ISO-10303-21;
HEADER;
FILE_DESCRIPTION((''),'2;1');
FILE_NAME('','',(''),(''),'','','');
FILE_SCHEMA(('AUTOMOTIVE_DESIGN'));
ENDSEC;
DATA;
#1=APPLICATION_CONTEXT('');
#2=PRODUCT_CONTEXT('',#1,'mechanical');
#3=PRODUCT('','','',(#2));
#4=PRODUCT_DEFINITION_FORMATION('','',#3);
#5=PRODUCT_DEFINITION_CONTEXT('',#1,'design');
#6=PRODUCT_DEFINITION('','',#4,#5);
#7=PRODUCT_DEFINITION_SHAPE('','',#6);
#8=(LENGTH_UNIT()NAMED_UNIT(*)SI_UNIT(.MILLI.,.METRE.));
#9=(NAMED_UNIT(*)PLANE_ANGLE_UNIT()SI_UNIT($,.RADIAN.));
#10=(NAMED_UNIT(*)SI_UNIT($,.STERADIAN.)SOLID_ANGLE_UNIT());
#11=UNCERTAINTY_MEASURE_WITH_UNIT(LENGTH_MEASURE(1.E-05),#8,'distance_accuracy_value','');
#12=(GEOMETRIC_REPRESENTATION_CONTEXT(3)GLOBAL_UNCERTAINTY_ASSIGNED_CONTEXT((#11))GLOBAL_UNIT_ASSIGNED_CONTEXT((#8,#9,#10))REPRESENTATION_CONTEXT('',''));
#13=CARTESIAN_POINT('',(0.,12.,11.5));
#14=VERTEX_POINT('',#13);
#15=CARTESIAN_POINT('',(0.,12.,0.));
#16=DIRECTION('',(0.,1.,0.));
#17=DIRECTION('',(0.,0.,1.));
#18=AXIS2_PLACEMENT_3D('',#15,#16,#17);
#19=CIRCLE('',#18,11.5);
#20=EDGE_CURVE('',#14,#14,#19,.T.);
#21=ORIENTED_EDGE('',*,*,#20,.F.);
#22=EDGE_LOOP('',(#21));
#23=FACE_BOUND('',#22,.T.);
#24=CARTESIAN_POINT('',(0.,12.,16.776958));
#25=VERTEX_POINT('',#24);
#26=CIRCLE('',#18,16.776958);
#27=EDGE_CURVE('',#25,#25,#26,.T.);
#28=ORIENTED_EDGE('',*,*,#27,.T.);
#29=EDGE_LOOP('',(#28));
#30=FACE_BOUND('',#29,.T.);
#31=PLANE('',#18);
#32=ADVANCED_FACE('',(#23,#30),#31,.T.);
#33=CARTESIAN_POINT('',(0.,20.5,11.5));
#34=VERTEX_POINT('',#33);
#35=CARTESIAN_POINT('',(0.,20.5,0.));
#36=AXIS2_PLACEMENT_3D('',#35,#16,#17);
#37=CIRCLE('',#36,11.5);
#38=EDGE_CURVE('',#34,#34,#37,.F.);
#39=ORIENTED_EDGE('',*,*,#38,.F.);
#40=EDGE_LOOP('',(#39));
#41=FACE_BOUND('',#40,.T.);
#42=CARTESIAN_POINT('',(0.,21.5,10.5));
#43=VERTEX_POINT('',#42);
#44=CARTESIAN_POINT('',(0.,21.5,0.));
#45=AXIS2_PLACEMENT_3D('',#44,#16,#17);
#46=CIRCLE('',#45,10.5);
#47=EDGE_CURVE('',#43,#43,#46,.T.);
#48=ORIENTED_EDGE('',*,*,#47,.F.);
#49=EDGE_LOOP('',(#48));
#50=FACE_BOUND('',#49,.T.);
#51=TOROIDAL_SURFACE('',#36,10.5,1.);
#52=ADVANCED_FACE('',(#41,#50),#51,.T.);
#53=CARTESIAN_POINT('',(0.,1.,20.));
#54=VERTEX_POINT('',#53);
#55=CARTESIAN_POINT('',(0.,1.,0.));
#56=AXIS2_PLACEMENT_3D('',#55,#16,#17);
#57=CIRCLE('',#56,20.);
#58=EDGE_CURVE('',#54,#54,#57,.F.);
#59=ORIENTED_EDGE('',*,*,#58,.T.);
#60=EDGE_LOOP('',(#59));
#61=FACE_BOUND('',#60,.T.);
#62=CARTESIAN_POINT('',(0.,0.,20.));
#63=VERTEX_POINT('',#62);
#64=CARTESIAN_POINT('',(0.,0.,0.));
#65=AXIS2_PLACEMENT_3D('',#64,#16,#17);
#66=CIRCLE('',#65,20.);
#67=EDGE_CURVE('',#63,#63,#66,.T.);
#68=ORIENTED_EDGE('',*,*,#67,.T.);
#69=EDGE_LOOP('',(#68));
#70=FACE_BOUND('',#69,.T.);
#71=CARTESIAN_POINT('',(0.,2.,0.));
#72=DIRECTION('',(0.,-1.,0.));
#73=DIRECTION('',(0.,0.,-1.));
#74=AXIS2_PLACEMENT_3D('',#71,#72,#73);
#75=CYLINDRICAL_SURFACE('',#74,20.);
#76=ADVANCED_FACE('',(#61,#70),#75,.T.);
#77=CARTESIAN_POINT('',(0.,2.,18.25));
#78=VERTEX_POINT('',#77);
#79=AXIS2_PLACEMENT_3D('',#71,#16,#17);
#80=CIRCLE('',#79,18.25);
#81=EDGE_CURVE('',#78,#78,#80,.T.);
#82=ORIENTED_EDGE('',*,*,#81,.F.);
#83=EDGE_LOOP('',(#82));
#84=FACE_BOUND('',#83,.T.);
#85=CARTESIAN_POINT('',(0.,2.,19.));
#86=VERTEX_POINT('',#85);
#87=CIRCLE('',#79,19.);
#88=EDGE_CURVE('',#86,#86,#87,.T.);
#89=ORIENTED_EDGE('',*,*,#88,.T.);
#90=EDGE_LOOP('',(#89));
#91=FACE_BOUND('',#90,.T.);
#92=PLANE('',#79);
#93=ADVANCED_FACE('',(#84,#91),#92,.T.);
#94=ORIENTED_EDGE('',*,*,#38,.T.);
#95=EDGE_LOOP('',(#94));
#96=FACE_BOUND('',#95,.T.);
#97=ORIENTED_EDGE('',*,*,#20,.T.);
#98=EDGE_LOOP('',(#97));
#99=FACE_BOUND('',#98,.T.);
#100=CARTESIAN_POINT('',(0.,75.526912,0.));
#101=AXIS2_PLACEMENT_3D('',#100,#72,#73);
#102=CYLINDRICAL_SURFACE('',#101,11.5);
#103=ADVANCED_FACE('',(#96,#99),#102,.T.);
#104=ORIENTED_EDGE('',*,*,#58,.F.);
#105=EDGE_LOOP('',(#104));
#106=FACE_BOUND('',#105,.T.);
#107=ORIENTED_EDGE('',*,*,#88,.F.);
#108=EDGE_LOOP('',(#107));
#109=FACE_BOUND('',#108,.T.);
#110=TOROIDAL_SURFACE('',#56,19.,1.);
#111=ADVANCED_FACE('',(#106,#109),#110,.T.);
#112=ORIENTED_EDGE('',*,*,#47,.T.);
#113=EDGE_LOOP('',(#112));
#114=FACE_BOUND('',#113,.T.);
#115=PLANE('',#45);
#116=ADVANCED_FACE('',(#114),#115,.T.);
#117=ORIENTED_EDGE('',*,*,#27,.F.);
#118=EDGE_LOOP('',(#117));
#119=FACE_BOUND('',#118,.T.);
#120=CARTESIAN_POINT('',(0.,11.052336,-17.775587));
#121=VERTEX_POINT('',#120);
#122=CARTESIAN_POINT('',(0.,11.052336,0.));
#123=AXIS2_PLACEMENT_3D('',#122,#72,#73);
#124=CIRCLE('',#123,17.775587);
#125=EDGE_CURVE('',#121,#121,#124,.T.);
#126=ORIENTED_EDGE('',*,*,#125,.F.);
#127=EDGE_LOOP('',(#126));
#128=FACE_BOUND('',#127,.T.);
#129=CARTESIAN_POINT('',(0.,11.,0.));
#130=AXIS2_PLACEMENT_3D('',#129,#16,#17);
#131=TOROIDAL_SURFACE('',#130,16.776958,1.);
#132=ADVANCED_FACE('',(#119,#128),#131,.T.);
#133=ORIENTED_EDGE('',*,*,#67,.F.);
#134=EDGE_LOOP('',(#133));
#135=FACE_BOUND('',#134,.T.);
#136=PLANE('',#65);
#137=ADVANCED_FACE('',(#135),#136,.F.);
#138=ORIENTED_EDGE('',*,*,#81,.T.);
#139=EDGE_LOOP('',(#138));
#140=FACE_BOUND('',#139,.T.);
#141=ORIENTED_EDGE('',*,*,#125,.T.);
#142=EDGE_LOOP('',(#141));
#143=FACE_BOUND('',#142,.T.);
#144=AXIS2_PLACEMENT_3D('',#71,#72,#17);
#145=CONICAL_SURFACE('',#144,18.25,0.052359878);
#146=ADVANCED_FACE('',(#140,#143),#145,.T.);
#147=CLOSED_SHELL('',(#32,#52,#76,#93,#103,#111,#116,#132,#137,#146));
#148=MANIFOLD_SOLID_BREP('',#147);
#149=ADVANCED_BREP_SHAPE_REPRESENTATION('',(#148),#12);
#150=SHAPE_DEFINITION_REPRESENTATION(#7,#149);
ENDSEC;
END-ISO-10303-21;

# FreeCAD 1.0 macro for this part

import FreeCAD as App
import Part
import Sketcher
from FreeCAD import Vector


def edges_at(feature, points):
    """Names of the edges that pass closest to the given points."""
    edges = feature.Shape.Edges
    near = lambda p: min(range(len(edges)), key=lambda i: edges[i].distToShape(Part.Vertex(*p))[0])
    return sorted({f"Edge{near(p) + 1}" for p in points})

doc = App.newDocument("Part")
body = doc.addObject("PartDesign::Body", "Body")

# Sketch on XZ plane
sketch1 = body.newObject("Sketcher::SketchObject", "Sketch")
sketch1.AttachmentSupport = (doc.getObject("XZ_Plane"), [""])
sketch1.MapMode = "FlatFace"
sketch1.addGeometry(Part.Circle(Vector(0, 0, 0), Vector(0, 0, 1), 20), False)
sketch1.addConstraint([
    Sketcher.Constraint("Coincident", 0, 3, -1, 1),
    Sketcher.Constraint("Diameter", 0, 40.0),
])
pad1 = body.newObject("PartDesign::Pad", "Pad")
pad1.Profile = sketch1
pad1.Length = 2
pad1.Reversed = True

# Sketch on XZ plane
sketch2 = body.newObject("Sketcher::SketchObject", "Sketch001")
sketch2.AttachmentSupport = (doc.getObject("XZ_Plane"), [""])
sketch2.MapMode = "FlatFace"
sketch2.AttachmentOffset = App.Placement(Vector(0, 0, -2), App.Rotation())
sketch2.addGeometry(Part.Circle(Vector(0, 0, 0), Vector(0, 0, 1), 18), False)
sketch2.addConstraint([
    Sketcher.Constraint("Coincident", 0, 3, -1, 1),
    Sketcher.Constraint("Diameter", 0, 36.5),
])
pad2 = body.newObject("PartDesign::Pad", "Pad001")
pad2.Profile = sketch2
pad2.Length = 10
pad2.Reversed = True
pad2.TaperAngle = -3

# Sketch on XZ plane
sketch3 = body.newObject("Sketcher::SketchObject", "Sketch002")
sketch3.AttachmentSupport = (doc.getObject("XZ_Plane"), [""])
sketch3.MapMode = "FlatFace"
sketch3.AttachmentOffset = App.Placement(Vector(0, 0, -12), App.Rotation())
sketch3.addGeometry(Part.Circle(Vector(0, 0, 0), Vector(0, 0, 1), 12), False)
sketch3.addConstraint([
    Sketcher.Constraint("Coincident", 0, 3, -1, 1),
    Sketcher.Constraint("Diameter", 0, 23.0),
])
pad3 = body.newObject("PartDesign::Pad", "Pad002")
pad3.Profile = sketch3
pad3.Length = 9.5
pad3.Reversed = True
doc.recompute()

fillet = body.newObject("PartDesign::Fillet", "Fillet")
fillet.Base = (pad3, edges_at(pad3, [(0, 21.5, -11.5), (0, 2, -20), (-17.726, 12, 0)]))
fillet.Radius = 1

doc.recompute()
